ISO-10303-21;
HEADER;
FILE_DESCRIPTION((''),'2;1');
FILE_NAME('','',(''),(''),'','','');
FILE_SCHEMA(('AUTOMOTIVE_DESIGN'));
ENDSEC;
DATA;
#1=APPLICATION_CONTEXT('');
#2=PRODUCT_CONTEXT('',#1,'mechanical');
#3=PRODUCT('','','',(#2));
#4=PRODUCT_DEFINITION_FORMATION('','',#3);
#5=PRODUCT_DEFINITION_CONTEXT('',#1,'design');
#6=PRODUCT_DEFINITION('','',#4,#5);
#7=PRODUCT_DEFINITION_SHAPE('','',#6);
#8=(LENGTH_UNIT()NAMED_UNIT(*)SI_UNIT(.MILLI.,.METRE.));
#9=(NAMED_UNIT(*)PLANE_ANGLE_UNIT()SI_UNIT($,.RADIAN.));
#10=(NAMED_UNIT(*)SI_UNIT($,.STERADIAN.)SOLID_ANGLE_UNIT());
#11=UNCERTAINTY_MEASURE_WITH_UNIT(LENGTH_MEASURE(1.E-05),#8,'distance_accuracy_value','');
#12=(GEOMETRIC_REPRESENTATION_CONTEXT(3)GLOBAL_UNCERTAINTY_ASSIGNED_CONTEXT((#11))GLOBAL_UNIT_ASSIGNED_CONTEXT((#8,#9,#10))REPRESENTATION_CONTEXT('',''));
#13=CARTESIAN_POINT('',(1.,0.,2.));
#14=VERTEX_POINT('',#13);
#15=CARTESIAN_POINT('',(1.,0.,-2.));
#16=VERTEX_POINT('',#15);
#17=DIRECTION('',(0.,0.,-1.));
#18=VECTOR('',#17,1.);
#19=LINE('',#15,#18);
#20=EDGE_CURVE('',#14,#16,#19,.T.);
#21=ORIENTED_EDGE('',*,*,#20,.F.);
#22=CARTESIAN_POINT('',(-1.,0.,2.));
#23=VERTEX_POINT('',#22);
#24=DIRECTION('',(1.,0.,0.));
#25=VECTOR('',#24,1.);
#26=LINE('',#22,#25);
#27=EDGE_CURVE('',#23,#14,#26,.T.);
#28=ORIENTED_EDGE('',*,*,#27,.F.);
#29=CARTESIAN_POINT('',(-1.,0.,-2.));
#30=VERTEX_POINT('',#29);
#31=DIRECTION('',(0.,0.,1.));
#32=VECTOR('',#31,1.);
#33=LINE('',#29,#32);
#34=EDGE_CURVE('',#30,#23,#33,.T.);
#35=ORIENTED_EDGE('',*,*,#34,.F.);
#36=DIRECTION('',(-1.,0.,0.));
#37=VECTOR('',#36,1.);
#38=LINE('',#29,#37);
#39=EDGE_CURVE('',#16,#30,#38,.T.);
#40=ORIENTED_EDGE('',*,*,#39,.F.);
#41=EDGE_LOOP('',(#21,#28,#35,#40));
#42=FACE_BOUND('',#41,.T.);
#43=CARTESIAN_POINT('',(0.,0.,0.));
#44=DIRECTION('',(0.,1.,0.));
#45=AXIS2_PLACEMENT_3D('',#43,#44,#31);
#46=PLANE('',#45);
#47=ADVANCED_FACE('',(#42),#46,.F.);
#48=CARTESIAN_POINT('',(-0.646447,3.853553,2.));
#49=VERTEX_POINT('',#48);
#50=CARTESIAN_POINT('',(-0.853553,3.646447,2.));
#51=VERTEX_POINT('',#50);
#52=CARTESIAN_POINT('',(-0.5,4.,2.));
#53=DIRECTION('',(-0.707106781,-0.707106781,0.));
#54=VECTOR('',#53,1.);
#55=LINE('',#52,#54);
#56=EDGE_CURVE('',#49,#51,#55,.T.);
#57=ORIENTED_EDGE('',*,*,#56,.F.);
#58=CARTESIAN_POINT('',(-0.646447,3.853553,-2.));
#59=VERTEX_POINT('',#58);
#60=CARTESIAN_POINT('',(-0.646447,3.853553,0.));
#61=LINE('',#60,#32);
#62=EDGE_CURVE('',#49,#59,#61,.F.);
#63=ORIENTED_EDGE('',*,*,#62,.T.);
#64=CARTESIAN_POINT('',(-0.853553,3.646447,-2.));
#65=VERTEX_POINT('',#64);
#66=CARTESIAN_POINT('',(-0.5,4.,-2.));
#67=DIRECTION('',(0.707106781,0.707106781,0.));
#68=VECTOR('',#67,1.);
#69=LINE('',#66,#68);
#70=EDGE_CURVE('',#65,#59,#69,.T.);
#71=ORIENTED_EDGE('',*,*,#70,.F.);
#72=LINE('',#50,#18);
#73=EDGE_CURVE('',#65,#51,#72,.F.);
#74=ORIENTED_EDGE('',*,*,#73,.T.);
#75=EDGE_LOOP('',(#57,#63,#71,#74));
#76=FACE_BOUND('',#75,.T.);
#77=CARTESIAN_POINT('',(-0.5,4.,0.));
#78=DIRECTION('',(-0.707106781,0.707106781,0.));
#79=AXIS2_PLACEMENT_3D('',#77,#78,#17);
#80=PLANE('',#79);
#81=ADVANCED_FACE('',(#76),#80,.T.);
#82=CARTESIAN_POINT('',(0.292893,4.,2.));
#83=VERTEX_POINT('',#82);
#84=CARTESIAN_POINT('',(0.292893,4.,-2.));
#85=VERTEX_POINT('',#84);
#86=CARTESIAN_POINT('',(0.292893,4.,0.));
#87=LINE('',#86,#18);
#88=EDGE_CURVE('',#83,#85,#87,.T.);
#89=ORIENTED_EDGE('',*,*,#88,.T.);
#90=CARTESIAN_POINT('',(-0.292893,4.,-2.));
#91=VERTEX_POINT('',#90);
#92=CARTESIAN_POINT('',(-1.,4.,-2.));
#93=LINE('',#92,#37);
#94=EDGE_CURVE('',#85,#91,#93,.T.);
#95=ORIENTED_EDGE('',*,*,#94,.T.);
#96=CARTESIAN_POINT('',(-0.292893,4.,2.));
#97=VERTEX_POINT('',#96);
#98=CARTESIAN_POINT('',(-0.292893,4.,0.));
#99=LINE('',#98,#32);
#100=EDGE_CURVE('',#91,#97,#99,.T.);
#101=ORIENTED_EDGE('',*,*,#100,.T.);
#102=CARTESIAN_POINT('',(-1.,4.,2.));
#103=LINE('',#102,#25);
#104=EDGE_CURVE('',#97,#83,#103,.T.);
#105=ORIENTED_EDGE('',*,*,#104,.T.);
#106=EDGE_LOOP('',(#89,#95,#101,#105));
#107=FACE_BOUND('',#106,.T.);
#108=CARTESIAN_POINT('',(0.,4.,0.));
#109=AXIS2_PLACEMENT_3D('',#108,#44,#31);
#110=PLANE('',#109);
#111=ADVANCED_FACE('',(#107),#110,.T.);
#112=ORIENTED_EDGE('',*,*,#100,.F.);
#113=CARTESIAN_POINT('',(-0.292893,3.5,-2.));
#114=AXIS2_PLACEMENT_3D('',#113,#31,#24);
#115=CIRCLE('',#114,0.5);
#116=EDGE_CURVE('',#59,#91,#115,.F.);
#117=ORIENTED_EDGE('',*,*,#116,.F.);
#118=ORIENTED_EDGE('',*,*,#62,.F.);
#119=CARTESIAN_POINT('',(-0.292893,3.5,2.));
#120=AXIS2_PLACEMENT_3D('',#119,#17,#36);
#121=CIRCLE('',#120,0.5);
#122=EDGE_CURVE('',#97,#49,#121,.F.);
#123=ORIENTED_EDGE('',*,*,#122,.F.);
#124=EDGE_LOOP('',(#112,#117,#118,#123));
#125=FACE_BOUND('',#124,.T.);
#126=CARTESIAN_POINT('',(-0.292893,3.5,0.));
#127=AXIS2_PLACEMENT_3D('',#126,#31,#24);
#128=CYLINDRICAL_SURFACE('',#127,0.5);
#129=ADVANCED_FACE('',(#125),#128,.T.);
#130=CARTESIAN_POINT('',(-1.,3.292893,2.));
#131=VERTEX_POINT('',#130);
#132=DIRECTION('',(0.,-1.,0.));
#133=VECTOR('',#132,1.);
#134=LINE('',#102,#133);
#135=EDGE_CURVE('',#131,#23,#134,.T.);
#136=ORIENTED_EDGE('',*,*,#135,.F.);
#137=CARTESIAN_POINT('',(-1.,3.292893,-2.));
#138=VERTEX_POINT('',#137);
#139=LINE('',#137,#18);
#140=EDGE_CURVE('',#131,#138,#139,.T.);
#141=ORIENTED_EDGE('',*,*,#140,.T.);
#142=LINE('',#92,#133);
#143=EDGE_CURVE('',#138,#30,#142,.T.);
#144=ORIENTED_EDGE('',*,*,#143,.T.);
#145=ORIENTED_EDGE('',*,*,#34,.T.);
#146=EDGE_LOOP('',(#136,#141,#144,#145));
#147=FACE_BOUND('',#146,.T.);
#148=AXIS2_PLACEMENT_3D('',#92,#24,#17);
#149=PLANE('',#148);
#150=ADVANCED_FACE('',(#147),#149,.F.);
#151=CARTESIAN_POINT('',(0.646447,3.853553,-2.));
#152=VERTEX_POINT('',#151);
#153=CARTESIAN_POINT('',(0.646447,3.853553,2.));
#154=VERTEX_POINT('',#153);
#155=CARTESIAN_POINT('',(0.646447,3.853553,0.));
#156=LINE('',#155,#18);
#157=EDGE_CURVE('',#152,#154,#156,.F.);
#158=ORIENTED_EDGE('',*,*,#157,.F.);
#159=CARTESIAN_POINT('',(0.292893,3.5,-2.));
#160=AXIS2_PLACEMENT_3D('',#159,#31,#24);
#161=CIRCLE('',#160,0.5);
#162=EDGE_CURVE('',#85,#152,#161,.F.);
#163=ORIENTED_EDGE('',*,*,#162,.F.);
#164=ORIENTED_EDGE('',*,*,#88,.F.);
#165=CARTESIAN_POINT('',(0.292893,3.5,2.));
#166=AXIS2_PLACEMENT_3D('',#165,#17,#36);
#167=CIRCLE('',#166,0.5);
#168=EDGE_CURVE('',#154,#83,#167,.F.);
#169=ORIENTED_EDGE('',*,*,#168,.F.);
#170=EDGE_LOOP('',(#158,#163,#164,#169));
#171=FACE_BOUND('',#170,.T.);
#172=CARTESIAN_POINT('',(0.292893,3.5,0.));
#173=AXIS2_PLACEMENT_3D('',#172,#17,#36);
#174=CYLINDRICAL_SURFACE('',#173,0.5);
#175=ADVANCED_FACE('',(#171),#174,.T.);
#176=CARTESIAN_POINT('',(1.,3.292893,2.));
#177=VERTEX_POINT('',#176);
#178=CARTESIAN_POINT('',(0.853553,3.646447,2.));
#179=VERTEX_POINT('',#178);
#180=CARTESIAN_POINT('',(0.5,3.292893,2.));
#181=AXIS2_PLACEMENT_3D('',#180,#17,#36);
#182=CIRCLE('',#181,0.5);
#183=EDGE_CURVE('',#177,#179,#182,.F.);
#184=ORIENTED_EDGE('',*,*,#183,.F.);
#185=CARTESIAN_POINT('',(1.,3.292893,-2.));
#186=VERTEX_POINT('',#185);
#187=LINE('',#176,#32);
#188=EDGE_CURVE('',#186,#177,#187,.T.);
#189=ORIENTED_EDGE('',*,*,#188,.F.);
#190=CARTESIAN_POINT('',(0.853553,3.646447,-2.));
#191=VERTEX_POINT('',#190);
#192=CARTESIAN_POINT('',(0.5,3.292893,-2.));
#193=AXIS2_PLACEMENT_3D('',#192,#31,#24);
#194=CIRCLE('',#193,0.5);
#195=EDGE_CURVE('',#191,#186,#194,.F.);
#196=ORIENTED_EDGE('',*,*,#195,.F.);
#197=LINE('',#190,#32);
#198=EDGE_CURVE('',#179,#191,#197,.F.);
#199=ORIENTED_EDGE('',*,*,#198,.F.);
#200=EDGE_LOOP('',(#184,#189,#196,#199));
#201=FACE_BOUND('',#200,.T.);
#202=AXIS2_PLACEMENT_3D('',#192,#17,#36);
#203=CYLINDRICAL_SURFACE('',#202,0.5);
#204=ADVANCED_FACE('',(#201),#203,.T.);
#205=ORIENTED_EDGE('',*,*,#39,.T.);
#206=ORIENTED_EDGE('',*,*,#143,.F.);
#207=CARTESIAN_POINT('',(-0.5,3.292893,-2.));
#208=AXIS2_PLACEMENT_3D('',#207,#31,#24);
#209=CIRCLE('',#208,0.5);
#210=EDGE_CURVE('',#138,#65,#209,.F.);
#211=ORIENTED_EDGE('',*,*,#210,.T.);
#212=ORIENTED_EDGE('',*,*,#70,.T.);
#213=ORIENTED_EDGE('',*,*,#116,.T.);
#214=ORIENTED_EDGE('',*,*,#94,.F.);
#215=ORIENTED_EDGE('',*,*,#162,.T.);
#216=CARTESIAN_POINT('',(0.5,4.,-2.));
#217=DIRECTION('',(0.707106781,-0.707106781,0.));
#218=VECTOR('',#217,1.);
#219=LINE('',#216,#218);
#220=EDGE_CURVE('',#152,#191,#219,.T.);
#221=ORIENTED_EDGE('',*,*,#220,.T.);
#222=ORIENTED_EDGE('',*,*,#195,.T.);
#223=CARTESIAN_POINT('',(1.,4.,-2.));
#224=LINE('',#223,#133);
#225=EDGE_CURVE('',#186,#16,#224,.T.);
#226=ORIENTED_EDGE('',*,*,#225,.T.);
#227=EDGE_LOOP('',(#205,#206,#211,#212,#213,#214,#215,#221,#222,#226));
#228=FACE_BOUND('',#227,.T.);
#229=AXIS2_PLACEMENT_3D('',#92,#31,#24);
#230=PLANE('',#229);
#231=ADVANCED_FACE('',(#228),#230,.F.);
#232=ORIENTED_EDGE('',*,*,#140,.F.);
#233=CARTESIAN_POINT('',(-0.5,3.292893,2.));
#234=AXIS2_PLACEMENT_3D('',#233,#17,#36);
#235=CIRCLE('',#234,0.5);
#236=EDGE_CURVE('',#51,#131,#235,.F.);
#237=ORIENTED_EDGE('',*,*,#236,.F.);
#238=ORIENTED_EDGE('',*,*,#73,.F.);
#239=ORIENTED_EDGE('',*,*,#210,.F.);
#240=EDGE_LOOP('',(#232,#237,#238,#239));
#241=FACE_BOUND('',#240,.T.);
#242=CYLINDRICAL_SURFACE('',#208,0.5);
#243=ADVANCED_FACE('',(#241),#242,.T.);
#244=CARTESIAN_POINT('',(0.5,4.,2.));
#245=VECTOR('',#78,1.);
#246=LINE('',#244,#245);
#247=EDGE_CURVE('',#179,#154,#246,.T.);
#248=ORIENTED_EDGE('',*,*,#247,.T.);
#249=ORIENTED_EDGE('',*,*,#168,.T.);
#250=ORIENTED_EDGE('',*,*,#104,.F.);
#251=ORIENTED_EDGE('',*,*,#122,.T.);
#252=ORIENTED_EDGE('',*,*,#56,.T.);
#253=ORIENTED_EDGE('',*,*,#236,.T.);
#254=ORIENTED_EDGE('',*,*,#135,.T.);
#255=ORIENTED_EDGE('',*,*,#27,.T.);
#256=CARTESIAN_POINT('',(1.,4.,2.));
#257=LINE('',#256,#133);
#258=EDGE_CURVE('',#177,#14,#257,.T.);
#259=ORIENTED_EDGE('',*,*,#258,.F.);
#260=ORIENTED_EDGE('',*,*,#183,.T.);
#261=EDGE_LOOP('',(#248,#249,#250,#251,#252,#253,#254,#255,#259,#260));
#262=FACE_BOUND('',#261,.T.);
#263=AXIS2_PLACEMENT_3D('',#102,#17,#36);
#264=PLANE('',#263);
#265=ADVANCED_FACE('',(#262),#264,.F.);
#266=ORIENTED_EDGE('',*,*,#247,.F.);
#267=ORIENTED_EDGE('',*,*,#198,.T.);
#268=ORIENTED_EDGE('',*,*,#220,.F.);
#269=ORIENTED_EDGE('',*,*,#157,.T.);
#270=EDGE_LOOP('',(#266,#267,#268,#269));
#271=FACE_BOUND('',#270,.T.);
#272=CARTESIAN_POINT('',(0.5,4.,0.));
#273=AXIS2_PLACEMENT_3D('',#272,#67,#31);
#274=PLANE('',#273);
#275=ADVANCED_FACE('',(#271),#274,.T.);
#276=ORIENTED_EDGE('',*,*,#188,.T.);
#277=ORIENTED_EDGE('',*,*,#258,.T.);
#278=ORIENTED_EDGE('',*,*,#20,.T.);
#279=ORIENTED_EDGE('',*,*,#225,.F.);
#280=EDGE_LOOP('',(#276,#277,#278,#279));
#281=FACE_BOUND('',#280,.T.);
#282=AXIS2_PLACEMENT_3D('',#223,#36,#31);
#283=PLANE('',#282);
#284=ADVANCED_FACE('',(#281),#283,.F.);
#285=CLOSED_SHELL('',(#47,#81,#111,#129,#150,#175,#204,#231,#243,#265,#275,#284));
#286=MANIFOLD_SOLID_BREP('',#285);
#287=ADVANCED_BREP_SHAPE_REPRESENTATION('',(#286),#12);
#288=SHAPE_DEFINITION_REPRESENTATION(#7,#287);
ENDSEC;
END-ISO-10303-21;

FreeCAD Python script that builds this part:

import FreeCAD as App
import Part
import Sketcher


def edges_at(feature, points):
    """Names of the edges that pass closest to the given points."""
    edges = feature.Shape.Edges
    near = lambda p: min(range(len(edges)), key=lambda i: edges[i].distToShape(Part.Vertex(*p))[0])
    return sorted({f"Edge{near(p) + 1}" for p in points})

doc = App.newDocument("Part")
body = doc.addObject("PartDesign::Body", "Body")

sketch1 = doc.addObject("Sketcher::SketchObject", "Sketch")
body.addObject(sketch1)
sketch1.AttachmentSupport = (doc.XZ_Plane, [""])
sketch1.MapMode = "FlatFace"
sketch1.addGeometry([
    Part.LineSegment(App.Vector(-1, -2, 0), App.Vector(-1, 2, 0)),
    Part.LineSegment(App.Vector(-1, 2, 0), App.Vector(1, 2, 0)),
    Part.LineSegment(App.Vector(1, 2, 0), App.Vector(1, -2, 0)),
    Part.LineSegment(App.Vector(1, -2, 0), App.Vector(-1, -2, 0)),
], False)
sketch1.addConstraint([
    Sketcher.Constraint("Coincident", 0, 2, 1, 1),
    Sketcher.Constraint("Coincident", 1, 2, 2, 1),
    Sketcher.Constraint("Coincident", 2, 2, 3, 1),
    Sketcher.Constraint("Coincident", 3, 2, 0, 1),
    Sketcher.Constraint("Vertical", 0),
    Sketcher.Constraint("Horizontal", 1),
    Sketcher.Constraint("Vertical", 2),
    Sketcher.Constraint("Horizontal", 3),
    Sketcher.Constraint("Symmetric", 0, 2, 2, 2, -1, 1),
    Sketcher.Constraint("DistanceX", 1, 1, 1, 2, 2.0),
    Sketcher.Constraint("DistanceY", 0, 1, 0, 2, 4.0),
])
pad1 = doc.addObject("PartDesign::Pad", "Pad")
body.addObject(pad1)
pad1.Profile = sketch1
pad1.Length = 4
pad1.Reversed = True
doc.recompute()

chamfer = doc.addObject("PartDesign::Chamfer", "Chamfer")
body.addObject(chamfer)
chamfer.Base = (pad1, edges_at(pad1, [(-1, 4, 0), (1, 4, 0)]))
chamfer.Size = 0.5
doc.recompute()

fillet = doc.addObject("PartDesign::Fillet", "Fillet")
body.addObject(fillet)
fillet.Base = (chamfer, edges_at(chamfer, [
    (0.5, 4, 0),
    (-0.5, 4, 0),
    (-1, 3.5, 0),
    (1, 3.5, 0),
]))
fillet.Radius = 0.5

doc.recompute()
